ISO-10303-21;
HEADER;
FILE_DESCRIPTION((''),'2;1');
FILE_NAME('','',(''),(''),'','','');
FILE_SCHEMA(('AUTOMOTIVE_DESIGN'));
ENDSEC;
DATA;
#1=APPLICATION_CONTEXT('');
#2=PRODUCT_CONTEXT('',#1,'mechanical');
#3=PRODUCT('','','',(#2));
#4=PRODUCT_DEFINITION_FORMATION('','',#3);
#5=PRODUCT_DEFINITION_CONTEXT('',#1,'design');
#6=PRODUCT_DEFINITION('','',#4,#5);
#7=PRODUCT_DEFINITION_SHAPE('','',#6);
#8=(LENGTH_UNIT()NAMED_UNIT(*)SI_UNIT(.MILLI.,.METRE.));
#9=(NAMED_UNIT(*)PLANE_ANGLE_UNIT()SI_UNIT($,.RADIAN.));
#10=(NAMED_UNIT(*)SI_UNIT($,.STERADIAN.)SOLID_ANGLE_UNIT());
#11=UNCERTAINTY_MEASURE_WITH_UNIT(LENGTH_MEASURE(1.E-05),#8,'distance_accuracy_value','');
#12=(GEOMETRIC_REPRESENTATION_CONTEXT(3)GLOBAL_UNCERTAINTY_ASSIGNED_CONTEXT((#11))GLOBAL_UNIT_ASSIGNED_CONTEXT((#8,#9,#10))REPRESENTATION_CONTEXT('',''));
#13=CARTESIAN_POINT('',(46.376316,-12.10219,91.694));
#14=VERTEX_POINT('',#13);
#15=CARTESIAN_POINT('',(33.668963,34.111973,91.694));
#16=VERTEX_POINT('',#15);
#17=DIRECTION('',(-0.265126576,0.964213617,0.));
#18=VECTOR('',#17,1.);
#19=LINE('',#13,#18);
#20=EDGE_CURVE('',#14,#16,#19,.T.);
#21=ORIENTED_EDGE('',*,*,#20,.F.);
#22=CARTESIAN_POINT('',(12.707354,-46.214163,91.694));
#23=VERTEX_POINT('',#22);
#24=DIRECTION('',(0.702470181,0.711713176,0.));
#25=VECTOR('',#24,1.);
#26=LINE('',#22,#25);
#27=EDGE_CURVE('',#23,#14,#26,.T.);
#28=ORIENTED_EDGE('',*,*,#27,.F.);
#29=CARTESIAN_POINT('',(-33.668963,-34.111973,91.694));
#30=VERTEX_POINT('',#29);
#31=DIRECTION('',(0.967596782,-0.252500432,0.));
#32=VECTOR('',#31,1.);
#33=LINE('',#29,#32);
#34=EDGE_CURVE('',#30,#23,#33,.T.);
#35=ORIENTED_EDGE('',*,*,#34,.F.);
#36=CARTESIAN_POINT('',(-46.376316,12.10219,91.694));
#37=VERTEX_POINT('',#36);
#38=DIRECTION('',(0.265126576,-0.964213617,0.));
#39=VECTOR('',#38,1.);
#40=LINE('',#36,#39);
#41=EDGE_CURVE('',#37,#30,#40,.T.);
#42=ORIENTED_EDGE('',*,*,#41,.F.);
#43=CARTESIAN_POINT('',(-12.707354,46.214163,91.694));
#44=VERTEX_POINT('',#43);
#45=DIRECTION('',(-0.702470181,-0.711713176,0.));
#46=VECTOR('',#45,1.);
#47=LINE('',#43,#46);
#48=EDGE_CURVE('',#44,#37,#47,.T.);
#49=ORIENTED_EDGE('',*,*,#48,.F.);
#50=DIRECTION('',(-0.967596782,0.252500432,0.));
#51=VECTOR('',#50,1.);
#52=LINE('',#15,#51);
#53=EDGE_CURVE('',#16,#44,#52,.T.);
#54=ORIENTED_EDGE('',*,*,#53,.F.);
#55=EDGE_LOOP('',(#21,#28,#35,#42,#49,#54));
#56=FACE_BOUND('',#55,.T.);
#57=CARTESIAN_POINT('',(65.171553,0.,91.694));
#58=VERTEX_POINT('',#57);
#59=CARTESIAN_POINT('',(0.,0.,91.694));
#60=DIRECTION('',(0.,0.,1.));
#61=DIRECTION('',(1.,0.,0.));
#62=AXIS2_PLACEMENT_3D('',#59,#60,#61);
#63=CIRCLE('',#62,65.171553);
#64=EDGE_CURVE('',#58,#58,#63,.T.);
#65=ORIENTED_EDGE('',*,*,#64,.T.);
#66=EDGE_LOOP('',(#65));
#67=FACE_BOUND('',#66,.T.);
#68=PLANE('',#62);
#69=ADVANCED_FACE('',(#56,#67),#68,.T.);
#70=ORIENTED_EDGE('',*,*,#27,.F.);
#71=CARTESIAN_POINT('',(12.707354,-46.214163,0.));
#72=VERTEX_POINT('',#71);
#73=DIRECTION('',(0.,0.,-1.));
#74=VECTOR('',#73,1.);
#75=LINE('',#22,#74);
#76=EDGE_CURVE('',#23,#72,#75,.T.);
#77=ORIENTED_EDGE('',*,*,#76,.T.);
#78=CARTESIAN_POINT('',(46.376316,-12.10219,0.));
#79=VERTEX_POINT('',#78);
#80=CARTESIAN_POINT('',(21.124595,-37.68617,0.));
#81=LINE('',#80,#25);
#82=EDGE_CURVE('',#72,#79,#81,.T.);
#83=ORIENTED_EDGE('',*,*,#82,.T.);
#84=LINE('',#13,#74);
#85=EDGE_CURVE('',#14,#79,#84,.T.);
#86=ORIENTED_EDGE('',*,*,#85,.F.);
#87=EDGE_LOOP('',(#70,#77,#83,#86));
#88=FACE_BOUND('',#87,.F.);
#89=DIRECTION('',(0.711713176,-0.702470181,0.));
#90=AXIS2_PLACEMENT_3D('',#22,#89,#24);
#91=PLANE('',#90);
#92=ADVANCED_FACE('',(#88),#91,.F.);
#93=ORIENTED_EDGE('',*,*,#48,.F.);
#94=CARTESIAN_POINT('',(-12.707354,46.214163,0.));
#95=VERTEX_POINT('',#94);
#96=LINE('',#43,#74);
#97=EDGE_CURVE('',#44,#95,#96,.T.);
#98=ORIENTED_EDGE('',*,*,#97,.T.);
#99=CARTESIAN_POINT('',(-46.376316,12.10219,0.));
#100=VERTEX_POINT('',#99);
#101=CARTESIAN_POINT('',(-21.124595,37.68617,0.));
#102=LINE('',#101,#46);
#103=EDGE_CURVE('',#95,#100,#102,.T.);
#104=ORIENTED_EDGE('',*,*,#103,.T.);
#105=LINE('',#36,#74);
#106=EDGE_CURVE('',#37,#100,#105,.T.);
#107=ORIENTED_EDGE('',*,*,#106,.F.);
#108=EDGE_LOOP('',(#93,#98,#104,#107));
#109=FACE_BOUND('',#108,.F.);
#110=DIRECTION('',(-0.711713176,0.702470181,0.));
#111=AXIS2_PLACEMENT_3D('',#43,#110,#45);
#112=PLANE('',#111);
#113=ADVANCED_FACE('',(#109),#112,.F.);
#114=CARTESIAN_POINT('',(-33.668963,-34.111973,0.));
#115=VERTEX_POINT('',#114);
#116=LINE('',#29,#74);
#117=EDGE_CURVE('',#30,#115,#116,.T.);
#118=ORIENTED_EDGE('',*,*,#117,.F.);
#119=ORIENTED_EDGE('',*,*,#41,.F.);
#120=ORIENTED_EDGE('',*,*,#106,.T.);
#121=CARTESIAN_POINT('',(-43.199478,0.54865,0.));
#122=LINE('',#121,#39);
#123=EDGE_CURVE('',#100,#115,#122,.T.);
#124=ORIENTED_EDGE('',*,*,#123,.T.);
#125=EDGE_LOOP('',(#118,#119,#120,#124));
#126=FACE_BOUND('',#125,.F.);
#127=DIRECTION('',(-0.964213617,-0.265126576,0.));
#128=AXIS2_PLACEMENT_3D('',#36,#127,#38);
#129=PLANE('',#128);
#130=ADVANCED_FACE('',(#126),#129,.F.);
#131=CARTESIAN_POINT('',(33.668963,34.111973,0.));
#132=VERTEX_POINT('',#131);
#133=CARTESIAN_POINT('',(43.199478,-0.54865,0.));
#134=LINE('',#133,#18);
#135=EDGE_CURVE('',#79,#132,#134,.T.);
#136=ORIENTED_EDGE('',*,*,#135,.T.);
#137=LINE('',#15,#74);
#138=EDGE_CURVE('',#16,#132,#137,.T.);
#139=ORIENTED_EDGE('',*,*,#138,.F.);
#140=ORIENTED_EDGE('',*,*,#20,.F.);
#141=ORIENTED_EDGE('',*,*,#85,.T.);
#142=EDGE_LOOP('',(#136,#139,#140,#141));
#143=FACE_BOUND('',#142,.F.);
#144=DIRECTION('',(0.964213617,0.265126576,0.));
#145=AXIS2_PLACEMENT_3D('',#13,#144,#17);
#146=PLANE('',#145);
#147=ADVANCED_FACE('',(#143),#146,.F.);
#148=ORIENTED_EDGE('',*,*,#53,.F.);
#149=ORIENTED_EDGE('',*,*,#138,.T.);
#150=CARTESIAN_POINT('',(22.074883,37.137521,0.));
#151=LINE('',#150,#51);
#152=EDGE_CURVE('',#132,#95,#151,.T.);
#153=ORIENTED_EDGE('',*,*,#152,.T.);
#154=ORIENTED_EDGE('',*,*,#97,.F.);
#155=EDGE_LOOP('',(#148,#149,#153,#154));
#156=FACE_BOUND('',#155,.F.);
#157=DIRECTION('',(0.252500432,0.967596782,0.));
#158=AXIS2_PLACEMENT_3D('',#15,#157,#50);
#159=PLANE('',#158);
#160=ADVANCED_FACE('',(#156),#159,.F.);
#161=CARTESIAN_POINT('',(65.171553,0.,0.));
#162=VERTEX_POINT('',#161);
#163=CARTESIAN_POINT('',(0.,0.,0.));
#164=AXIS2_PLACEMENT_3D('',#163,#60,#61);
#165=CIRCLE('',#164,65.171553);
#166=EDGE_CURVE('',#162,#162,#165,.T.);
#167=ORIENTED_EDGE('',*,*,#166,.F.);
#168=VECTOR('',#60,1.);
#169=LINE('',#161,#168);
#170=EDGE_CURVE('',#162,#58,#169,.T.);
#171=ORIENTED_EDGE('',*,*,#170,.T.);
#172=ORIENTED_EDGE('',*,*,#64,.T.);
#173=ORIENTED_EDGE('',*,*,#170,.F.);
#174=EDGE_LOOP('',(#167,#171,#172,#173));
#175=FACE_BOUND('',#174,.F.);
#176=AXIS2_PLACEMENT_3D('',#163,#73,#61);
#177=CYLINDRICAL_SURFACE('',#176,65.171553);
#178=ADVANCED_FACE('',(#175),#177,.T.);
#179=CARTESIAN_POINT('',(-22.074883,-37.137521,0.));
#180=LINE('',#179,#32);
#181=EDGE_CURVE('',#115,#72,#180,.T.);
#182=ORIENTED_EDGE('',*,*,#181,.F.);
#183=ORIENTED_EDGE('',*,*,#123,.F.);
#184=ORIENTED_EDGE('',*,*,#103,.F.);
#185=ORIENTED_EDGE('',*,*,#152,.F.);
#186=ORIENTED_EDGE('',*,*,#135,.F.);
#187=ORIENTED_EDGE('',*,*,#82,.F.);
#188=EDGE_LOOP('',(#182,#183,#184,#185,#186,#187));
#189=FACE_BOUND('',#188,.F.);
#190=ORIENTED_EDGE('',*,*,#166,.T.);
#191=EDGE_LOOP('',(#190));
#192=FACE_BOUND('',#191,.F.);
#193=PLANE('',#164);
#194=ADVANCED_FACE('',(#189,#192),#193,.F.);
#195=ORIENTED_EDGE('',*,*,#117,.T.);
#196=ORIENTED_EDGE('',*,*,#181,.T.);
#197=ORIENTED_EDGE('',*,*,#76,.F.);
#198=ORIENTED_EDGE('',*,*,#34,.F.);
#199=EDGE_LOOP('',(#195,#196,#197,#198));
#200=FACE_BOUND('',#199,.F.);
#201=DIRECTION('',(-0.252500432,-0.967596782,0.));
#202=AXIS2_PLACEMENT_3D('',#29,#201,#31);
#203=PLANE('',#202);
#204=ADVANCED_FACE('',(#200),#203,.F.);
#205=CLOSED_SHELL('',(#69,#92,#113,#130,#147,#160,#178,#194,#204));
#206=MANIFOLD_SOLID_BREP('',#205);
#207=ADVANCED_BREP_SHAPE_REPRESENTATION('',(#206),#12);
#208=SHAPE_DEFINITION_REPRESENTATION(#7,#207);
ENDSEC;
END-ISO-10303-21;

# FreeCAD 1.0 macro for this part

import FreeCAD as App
import Part
import Sketcher

V = App.Vector
Q = App.Units.Quantity

doc = App.newDocument("Part")
body = doc.addObject("PartDesign::Body", "Body")

sketch1 = body.newObject("Sketcher::SketchObject", "Sketch")
sketch1.AttachmentSupport = (doc.getObject("XY_Plane"), [""])
sketch1.MapMode = "FlatFace"
sketch1.addGeometry(Part.Circle(V(0, 0, 0), V(0, 0, 1), 65), False)
sketch1.addConstraint([
    Sketcher.Constraint("Coincident", 0, 3, -1, 1),
    Sketcher.Constraint("Diameter", 0, Q("130.343106 mm")),
])
pad1 = body.newObject("PartDesign::Pad", "Pad")
pad1.Profile = sketch1
pad1.Length = Q("3.61 in")

sketch2 = body.newObject("Sketcher::SketchObject", "Sketch001")
sketch2.AttachmentSupport = (doc.getObject("XY_Plane"), [""])
sketch2.MapMode = "FlatFace"
sketch2.AttachmentOffset = App.Placement(V(0, 0, 3.61 * 25.4), App.Rotation())
sketch2.addGeometry([
    Part.LineSegment(V(34, 34, 0), V(-13, 46, 0)),
    Part.LineSegment(V(-13, 46, 0), V(-46, 12, 0)),
    Part.LineSegment(V(-46, 12, 0), V(-34, -34, 0)),
    Part.LineSegment(V(-34, -34, 0), V(13, -46, 0)),
    Part.LineSegment(V(13, -46, 0), V(46, -12, 0)),
    Part.LineSegment(V(46, -12, 0), V(34, 34, 0)),
], False)
sketch2.addConstraint([
    Sketcher.Constraint("Coincident", 0, 2, 1, 1),
    Sketcher.Constraint("Coincident", 1, 2, 2, 1),
    Sketcher.Constraint("Coincident", 2, 2, 3, 1),
    Sketcher.Constraint("Coincident", 3, 2, 4, 1),
    Sketcher.Constraint("Coincident", 4, 2, 5, 1),
    Sketcher.Constraint("Coincident", 5, 2, 0, 1),
    Sketcher.Constraint("Symmetric", 0, 2, 3, 2, -1, 1),
    Sketcher.Constraint("Symmetric", 1, 2, 4, 2, -1, 1),
    Sketcher.Constraint("Symmetric", 2, 2, 5, 2, -1, 1),
    Sketcher.Constraint("Equal", 0, 1),
    Sketcher.Constraint("Equal", 1, 2),
    Sketcher.Constraint("DistanceY", -1, 1, 1, 2, Q("12.10219 mm")),
    Sketcher.Constraint("DistanceX", 2, 2, 0, 2, Q("20.961609 mm")),
    Sketcher.Constraint("DistanceY", 3, 2, 2, 2, Q("12.10219 mm")),
    Sketcher.Constraint("DistanceX", 1, 2, 3, 2, Q("59.08367 mm")),
])
pocket1 = body.newObject("PartDesign::Pocket", "Pocket")
pocket1.Profile = sketch2
pocket1.Type = "ThroughAll"

doc.recompute()
